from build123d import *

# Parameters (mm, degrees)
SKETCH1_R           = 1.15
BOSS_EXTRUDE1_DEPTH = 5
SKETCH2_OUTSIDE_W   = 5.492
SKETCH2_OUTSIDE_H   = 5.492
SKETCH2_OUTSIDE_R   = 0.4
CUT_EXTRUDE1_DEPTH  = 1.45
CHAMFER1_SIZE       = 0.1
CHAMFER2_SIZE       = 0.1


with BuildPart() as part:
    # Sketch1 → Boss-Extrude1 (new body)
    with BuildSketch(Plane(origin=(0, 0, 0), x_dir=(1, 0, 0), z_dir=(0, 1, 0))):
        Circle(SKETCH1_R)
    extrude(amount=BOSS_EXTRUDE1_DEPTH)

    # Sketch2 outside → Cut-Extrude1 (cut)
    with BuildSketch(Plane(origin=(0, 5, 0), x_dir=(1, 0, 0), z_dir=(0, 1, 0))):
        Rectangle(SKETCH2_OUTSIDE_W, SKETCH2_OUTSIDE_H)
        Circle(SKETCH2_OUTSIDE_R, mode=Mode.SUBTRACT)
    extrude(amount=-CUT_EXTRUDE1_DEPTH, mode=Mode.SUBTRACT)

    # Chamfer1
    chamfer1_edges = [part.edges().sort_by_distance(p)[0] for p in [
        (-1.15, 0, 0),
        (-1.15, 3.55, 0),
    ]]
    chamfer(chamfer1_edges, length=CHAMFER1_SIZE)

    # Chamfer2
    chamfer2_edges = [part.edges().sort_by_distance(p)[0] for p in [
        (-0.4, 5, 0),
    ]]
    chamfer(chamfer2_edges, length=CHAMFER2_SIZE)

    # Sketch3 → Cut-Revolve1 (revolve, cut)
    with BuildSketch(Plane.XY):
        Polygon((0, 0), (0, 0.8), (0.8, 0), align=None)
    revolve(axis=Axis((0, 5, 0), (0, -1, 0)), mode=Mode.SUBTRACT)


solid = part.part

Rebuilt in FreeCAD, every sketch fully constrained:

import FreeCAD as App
import Part
import Sketcher

V = App.Vector


def edges_at(feature, points):
    """Names of the edges that pass closest to the given points."""
    edges = feature.Shape.Edges
    near = lambda p: min(range(len(edges)), key=lambda i: edges[i].distToShape(Part.Vertex(*p))[0])
    return sorted({f"Edge{near(p) + 1}" for p in points})


def add_polygon(sketch, points):
    """Adds a closed chain of lines whose ends are joined by coincident constraints."""
    first, n = sketch.GeometryCount, len(points)
    for a, b in zip(points, points[1:] + points[:1]):
        sketch.addGeometry(Part.LineSegment(App.Vector(*a, 0), App.Vector(*b, 0)), False)
    for i in range(n):
        sketch.addConstraint(Sketcher.Constraint("Coincident", first + i, 2, first + (i + 1) % n, 1))

doc = App.newDocument("Part")
params = doc.addObject("Spreadsheet::Sheet", "Params")
for row, (alias, value) in enumerate([
    ("sketch1_diameter", "2.3 mm"),
    ("pad1_length", "5 mm"),
    ("sketch2_diameter", "0.8 mm"),
    ("pocket1_length", "1.45 mm"),
    ("chamfer_size", "0.1 mm"),
    ("chamfer2_size", "0.1 mm"),
    ("sketch3_width", "0.8 mm"),
    ("groove_angle", "360 deg"),
], start=1):
    params.set(f"A{row}", alias)
    params.set(f"B{row}", "=" + value)
    params.setAlias(f"B{row}", alias)

body = doc.addObject("PartDesign::Body", "Body")

# Sketch on XZ plane
sketch1 = body.newObject("Sketcher::SketchObject", "Sketch")
sketch1.AttachmentSupport = (doc.getObject("XZ_Plane"), [""])
sketch1.MapMode = "FlatFace"
sketch1.addGeometry(Part.Circle(V(0, 0, 0), V(0, 0, 1), 1.15), False)
sketch1.addConstraint([
    Sketcher.Constraint("Coincident", 0, 3, -1, 1),
    Sketcher.Constraint("Diameter", 0, 2.3),
])
sketch1.setExpression("Constraints[1]", "Params.sketch1_diameter")
pad1 = body.newObject("PartDesign::Pad", "Pad")
pad1.Profile = sketch1
pad1.setExpression("Length", "Params.pad1_length")
pad1.Reversed = True

# Sketch on XZ plane
sketch2 = body.newObject("Sketcher::SketchObject", "Sketch001")
sketch2.AttachmentSupport = (doc.getObject("XZ_Plane"), [""])
sketch2.MapMode = "FlatFace"
sketch2.AttachmentOffset = App.Placement(V(0, 0, -5), App.Rotation())
add_polygon(sketch2, [(-2.746, -2.746), (-2.746, 2.746), (2.746, 2.746), (2.746, -2.746)])  # lines 0-3
sketch2.addGeometry(Part.Circle(V(0, 0, 0), V(0, 0, 1), 0.4), False)  # 4
sketch2.addConstraint([
    Sketcher.Constraint("Vertical", 0),
    Sketcher.Constraint("Horizontal", 1),
    Sketcher.Constraint("Vertical", 2),
    Sketcher.Constraint("Horizontal", 3),
    Sketcher.Constraint("Coincident", 4, 3, -1, 1),
    Sketcher.Constraint("Symmetric", 0, 2, 2, 2, -1, 1),
    Sketcher.Constraint("Equal", 3, 0),
    Sketcher.Constraint("Diameter", 4, 0.8),
    Sketcher.Constraint("DistanceX", 1, 1, 1, 2, 5.492),
])
sketch2.setExpression("Constraints[11]", "Params.sketch2_diameter")
pocket1 = body.newObject("PartDesign::Pocket", "Pocket")
pocket1.Profile = sketch2
pocket1.setExpression("Length", "Params.pocket1_length")
pocket1.Reversed = True
doc.recompute()

chamfer = body.newObject("PartDesign::Chamfer", "Chamfer")
chamfer.Base = (pocket1, edges_at(pocket1, [(-1.15, 0, 0), (-1.15, 3.55, 0)]))
chamfer.setExpression("Size", "Params.chamfer_size")
doc.recompute()

chamfer2 = body.newObject("PartDesign::Chamfer", "Chamfer001")
chamfer2.Base = (chamfer, edges_at(chamfer, [(-0.4, 5, 0)]))
chamfer2.setExpression("Size", "Params.chamfer2_size")

# Sketch on XY plane
sketch3 = body.newObject("Sketcher::SketchObject", "Sketch002")
sketch3.AttachmentSupport = (doc.getObject("XY_Plane"), [""])
sketch3.MapMode = "FlatFace"
add_polygon(sketch3, [(0, 0.8), (0, 0), (0.8, 0)])  # lines 0-2
sketch3.addConstraint([
    Sketcher.Constraint("Vertical", 0),
    Sketcher.Constraint("Horizontal", 1),
    Sketcher.Constraint("Coincident", 0, 2, -1, 1),
    Sketcher.Constraint("Equal", 1, 0),
    Sketcher.Constraint("DistanceX", 1, 1, 1, 2, 0.8),
])
sketch3.setExpression("Constraints[7]", "Params.sketch3_width")
groove = body.newObject("PartDesign::Groove", "Groove")
groove.Profile = sketch3
groove.ReferenceAxis = (sketch3, ["V_Axis"])
groove.setExpression("Angle", "Params.groove_angle")

doc.recompute()
